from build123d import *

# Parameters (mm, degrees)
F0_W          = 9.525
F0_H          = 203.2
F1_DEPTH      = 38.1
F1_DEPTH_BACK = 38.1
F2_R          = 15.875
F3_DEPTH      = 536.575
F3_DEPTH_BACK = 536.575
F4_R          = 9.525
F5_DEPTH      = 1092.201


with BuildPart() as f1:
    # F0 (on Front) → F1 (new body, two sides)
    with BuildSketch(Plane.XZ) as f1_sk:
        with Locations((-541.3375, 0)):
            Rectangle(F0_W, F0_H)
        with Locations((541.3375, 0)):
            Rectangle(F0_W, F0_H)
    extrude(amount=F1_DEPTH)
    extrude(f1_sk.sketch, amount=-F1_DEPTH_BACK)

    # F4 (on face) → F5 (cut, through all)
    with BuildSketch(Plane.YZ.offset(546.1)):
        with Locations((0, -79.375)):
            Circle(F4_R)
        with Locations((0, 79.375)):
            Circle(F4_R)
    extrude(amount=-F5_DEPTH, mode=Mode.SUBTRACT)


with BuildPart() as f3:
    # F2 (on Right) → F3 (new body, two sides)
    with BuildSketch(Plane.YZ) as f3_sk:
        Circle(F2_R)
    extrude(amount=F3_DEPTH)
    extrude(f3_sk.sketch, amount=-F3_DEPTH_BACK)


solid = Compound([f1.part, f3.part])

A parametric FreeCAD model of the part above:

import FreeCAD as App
import Part
import Sketcher
from FreeCAD import Vector
Q = App.Units.Quantity

doc = App.newDocument("Part")
body = doc.addObject("PartDesign::Body", "Body")
body.AllowCompound = True

sketch1 = body.newObject("Sketcher::SketchObject", "Sketch")
sketch1.AttachmentSupport = (doc.getObject("XZ_Plane"), [""])
sketch1.MapMode = "FlatFace"
sketch1.addGeometry([
    Part.LineSegment(Vector(-546, 102, 0), Vector(-546, -102, 0)),
    Part.LineSegment(Vector(-546, -102, 0), Vector(-537, -102, 0)),
    Part.LineSegment(Vector(-537, -102, 0), Vector(-537, 102, 0)),
    Part.LineSegment(Vector(-537, 102, 0), Vector(-546, 102, 0)),
    Part.LineSegment(Vector(537, 102, 0), Vector(537, -102, 0)),
    Part.LineSegment(Vector(537, -102, 0), Vector(546, -102, 0)),
    Part.LineSegment(Vector(546, -102, 0), Vector(546, 102, 0)),
    Part.LineSegment(Vector(546, 102, 0), Vector(537, 102, 0)),
], False)
sketch1.addConstraint([
    Sketcher.Constraint("Coincident", 0, 2, 1, 1),
    Sketcher.Constraint("Coincident", 1, 2, 2, 1),
    Sketcher.Constraint("Coincident", 2, 2, 3, 1),
    Sketcher.Constraint("Coincident", 3, 2, 0, 1),
    Sketcher.Constraint("Coincident", 4, 2, 5, 1),
    Sketcher.Constraint("Coincident", 5, 2, 6, 1),
    Sketcher.Constraint("Coincident", 6, 2, 7, 1),
    Sketcher.Constraint("Coincident", 7, 2, 4, 1),
    Sketcher.Constraint("Vertical", 0),
    Sketcher.Constraint("Horizontal", 1),
    Sketcher.Constraint("Vertical", 2),
    Sketcher.Constraint("Horizontal", 3),
    Sketcher.Constraint("Vertical", 4),
    Sketcher.Constraint("Horizontal", 5),
    Sketcher.Constraint("Vertical", 6),
    Sketcher.Constraint("Horizontal", 7),
    Sketcher.Constraint("Symmetric", 2, 2, 4, 2, -1, 1),
    Sketcher.Constraint("Symmetric", 0, 2, 6, 2, -1, 1),
    Sketcher.Constraint("Horizontal", 1, 2, 4, 2),
    Sketcher.Constraint("DistanceY", 0, 2, 0, 1, Q("8 in")),
    Sketcher.Constraint("DistanceX", 0, 2, 5, 2, Q("43 in")),
    Sketcher.Constraint("DistanceX", 1, 1, 1, 2, Q("0.375 in")),
])
pad1 = body.newObject("PartDesign::Pad", "Pad")
pad1.Profile = sketch1
pad1.Type = "TwoLengths"
pad1.Length = Q("1.5 in")
pad1.Length2 = Q("1.5 in")

sketch2 = body.newObject("Sketcher::SketchObject", "Sketch001")
sketch2.AttachmentSupport = (doc.getObject("YZ_Plane"), [""])
sketch2.MapMode = "FlatFace"
sketch2.AttachmentOffset = App.Placement(Vector(0, 0, 21.5 * 25.4), App.Rotation())
sketch2.addGeometry([
    Part.Circle(Vector(0, -79, 0), Vector(0, 0, 1), 10),
    Part.Circle(Vector(0, 79, 0), Vector(0, 0, 1), 10),
], False)
sketch2.addConstraint([
    Sketcher.Constraint("Equal", 0, 1),
    Sketcher.Constraint("Symmetric", 0, 3, 1, 3, -1, 1),
    Sketcher.Constraint("PointOnObject", 0, 3, -2),
    Sketcher.Constraint("Diameter", 0, Q("0.75 in")),
    Sketcher.Constraint("DistanceY", 0, 3, 1, 3, Q("6.25 in")),
])
pocket1 = body.newObject("PartDesign::Pocket", "Pocket")
pocket1.Profile = sketch2
pocket1.Type = "ThroughAll"
body2 = doc.addObject("PartDesign::Body", "Body001")

sketch3 = body2.newObject("Sketcher::SketchObject", "Sketch002")
sketch3.AttachmentSupport = (doc.getObject("YZ_Plane001"), [""])
sketch3.MapMode = "FlatFace"
sketch3.addGeometry(Part.Circle(Vector(0, 0, 0), Vector(0, 0, 1), 16), False)
sketch3.addConstraint([
    Sketcher.Constraint("Coincident", 0, 3, -1, 1),
    Sketcher.Constraint("Diameter", 0, Q("1.25 in")),
])
pad2 = body2.newObject("PartDesign::Pad", "Pad001")
pad2.Profile = sketch3
pad2.Type = "TwoLengths"
pad2.Length = Q("21.125 in")
pad2.Length2 = Q("21.125 in")

doc.recompute()
